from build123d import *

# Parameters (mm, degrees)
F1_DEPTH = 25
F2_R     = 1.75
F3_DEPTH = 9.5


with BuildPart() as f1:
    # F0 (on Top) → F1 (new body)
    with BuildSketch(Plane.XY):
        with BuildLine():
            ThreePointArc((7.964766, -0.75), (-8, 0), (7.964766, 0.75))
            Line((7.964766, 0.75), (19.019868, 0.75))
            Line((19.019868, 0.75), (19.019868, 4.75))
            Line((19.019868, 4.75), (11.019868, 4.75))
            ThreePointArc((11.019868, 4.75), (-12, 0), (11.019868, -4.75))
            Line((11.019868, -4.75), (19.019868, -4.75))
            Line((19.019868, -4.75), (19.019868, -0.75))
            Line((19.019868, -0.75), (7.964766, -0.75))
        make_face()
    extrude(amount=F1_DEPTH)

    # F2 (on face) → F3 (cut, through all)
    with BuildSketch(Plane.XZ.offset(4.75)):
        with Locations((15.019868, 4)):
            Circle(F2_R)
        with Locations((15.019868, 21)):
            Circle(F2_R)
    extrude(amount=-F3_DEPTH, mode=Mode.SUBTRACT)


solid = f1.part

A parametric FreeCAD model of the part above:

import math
import FreeCAD as App
import Part
import Sketcher

doc = App.newDocument("Part")
body = doc.addObject("PartDesign::Body", "Body")

# Sketch on XY plane
sketch1 = body.newObject("Sketcher::SketchObject", "Sketch")
sketch1.AttachmentSupport = (doc.getObject("XY_Plane"), [""])
sketch1.MapMode = "FlatFace"
sketch1.addGeometry(Part.ArcOfCircle(Part.Circle(App.Vector(0, 0, 0), App.Vector(0, 0, 1), 8), math.radians(5), math.radians(355)), False)
sketch1.addGeometry(Part.LineSegment(App.Vector(8, 0.8, 0), App.Vector(19, 0.8, 0)), False)
sketch1.addGeometry(Part.LineSegment(App.Vector(19, 0.8, 0), App.Vector(19, 4.8, 0)), False)
sketch1.addGeometry(Part.LineSegment(App.Vector(19, 4.8, 0), App.Vector(11, 4.8, 0)), False)
sketch1.addGeometry(Part.ArcOfCircle(Part.Circle(App.Vector(0, 0, 0), App.Vector(0, 0, 1), 12), math.radians(23), math.radians(337)), False)
sketch1.addGeometry(Part.LineSegment(App.Vector(11, -4.8, 0), App.Vector(19, -4.8, 0)), False)
sketch1.addGeometry(Part.LineSegment(App.Vector(19, -4.8, 0), App.Vector(19, -0.8, 0)), False)
sketch1.addGeometry(Part.LineSegment(App.Vector(19, -0.8, 0), App.Vector(8, -0.8, 0)), False)
sketch1.addConstraint(Sketcher.Constraint("Coincident", 0, 1, 1, 1))
sketch1.addConstraint(Sketcher.Constraint("Coincident", 1, 2, 2, 1))
sketch1.addConstraint(Sketcher.Constraint("Coincident", 2, 2, 3, 1))
sketch1.addConstraint(Sketcher.Constraint("Coincident", 3, 2, 4, 1))
sketch1.addConstraint(Sketcher.Constraint("Coincident", 4, 2, 5, 1))
sketch1.addConstraint(Sketcher.Constraint("Coincident", 5, 2, 6, 1))
sketch1.addConstraint(Sketcher.Constraint("Coincident", 6, 2, 7, 1))
sketch1.addConstraint(Sketcher.Constraint("Coincident", 7, 2, 0, 2))
sketch1.addConstraint(Sketcher.Constraint("Horizontal", 1))
sketch1.addConstraint(Sketcher.Constraint("Vertical", 2))
sketch1.addConstraint(Sketcher.Constraint("Horizontal", 3))
sketch1.addConstraint(Sketcher.Constraint("Horizontal", 5))
sketch1.addConstraint(Sketcher.Constraint("Vertical", 6))
sketch1.addConstraint(Sketcher.Constraint("Horizontal", 7))
sketch1.addConstraint(Sketcher.Constraint("Coincident", 0, 3, -1, 1))
sketch1.addConstraint(Sketcher.Constraint("Coincident", 4, 3, -1, 1))
sketch1.addConstraint(Sketcher.Constraint("Symmetric", 2, 2, 5, 2, -1))
sketch1.addConstraint(Sketcher.Constraint("Vertical", 0, 1, 7, 2))
sketch1.addConstraint(Sketcher.Constraint("Radius", 0, 8.0))
sketch1.addConstraint(Sketcher.Constraint("Radius", 4, 12.0))
sketch1.addConstraint(Sketcher.Constraint("DistanceX", 3, 2, 3, 1, 8.0))
sketch1.addConstraint(Sketcher.Constraint("DistanceY", 2, 1, 2, 2, 4.0))
sketch1.addConstraint(Sketcher.Constraint("DistanceY", 4, 2, 0, 1, 5.5))
pad1 = body.newObject("PartDesign::Pad", "Pad")
pad1.Profile = sketch1
pad1.Length = 25

# Sketch on XZ plane
sketch2 = body.newObject("Sketcher::SketchObject", "Sketch001")
sketch2.AttachmentSupport = (doc.getObject("XZ_Plane"), [""])
sketch2.MapMode = "FlatFace"
sketch2.AttachmentOffset = App.Placement(App.Vector(0, 0, 4.75), App.Rotation())
sketch2.addGeometry(Part.Circle(App.Vector(15, 4, 0), App.Vector(0, 0, 1), 1.8), False)
sketch2.addGeometry(Part.Circle(App.Vector(15, 21, 0), App.Vector(0, 0, 1), 1.8), False)
sketch2.addConstraint(Sketcher.Constraint("Equal", 0, 1))
sketch2.addConstraint(Sketcher.Constraint("Vertical", 0, 3, 1, 3))
sketch2.addConstraint(Sketcher.Constraint("Diameter", 0, 3.5))
sketch2.addConstraint(Sketcher.Constraint("DistanceY", -1, 1, 0, 3, 4.0))
sketch2.addConstraint(Sketcher.Constraint("DistanceY", -1, 1, 1, 3, 21.0))
sketch2.addConstraint(Sketcher.Constraint("DistanceX", -1, 1, 0, 3, 15.019868))
pocket1 = body.newObject("PartDesign::Pocket", "Pocket")
pocket1.Profile = sketch2
pocket1.Type = "ThroughAll"

doc.recompute()
